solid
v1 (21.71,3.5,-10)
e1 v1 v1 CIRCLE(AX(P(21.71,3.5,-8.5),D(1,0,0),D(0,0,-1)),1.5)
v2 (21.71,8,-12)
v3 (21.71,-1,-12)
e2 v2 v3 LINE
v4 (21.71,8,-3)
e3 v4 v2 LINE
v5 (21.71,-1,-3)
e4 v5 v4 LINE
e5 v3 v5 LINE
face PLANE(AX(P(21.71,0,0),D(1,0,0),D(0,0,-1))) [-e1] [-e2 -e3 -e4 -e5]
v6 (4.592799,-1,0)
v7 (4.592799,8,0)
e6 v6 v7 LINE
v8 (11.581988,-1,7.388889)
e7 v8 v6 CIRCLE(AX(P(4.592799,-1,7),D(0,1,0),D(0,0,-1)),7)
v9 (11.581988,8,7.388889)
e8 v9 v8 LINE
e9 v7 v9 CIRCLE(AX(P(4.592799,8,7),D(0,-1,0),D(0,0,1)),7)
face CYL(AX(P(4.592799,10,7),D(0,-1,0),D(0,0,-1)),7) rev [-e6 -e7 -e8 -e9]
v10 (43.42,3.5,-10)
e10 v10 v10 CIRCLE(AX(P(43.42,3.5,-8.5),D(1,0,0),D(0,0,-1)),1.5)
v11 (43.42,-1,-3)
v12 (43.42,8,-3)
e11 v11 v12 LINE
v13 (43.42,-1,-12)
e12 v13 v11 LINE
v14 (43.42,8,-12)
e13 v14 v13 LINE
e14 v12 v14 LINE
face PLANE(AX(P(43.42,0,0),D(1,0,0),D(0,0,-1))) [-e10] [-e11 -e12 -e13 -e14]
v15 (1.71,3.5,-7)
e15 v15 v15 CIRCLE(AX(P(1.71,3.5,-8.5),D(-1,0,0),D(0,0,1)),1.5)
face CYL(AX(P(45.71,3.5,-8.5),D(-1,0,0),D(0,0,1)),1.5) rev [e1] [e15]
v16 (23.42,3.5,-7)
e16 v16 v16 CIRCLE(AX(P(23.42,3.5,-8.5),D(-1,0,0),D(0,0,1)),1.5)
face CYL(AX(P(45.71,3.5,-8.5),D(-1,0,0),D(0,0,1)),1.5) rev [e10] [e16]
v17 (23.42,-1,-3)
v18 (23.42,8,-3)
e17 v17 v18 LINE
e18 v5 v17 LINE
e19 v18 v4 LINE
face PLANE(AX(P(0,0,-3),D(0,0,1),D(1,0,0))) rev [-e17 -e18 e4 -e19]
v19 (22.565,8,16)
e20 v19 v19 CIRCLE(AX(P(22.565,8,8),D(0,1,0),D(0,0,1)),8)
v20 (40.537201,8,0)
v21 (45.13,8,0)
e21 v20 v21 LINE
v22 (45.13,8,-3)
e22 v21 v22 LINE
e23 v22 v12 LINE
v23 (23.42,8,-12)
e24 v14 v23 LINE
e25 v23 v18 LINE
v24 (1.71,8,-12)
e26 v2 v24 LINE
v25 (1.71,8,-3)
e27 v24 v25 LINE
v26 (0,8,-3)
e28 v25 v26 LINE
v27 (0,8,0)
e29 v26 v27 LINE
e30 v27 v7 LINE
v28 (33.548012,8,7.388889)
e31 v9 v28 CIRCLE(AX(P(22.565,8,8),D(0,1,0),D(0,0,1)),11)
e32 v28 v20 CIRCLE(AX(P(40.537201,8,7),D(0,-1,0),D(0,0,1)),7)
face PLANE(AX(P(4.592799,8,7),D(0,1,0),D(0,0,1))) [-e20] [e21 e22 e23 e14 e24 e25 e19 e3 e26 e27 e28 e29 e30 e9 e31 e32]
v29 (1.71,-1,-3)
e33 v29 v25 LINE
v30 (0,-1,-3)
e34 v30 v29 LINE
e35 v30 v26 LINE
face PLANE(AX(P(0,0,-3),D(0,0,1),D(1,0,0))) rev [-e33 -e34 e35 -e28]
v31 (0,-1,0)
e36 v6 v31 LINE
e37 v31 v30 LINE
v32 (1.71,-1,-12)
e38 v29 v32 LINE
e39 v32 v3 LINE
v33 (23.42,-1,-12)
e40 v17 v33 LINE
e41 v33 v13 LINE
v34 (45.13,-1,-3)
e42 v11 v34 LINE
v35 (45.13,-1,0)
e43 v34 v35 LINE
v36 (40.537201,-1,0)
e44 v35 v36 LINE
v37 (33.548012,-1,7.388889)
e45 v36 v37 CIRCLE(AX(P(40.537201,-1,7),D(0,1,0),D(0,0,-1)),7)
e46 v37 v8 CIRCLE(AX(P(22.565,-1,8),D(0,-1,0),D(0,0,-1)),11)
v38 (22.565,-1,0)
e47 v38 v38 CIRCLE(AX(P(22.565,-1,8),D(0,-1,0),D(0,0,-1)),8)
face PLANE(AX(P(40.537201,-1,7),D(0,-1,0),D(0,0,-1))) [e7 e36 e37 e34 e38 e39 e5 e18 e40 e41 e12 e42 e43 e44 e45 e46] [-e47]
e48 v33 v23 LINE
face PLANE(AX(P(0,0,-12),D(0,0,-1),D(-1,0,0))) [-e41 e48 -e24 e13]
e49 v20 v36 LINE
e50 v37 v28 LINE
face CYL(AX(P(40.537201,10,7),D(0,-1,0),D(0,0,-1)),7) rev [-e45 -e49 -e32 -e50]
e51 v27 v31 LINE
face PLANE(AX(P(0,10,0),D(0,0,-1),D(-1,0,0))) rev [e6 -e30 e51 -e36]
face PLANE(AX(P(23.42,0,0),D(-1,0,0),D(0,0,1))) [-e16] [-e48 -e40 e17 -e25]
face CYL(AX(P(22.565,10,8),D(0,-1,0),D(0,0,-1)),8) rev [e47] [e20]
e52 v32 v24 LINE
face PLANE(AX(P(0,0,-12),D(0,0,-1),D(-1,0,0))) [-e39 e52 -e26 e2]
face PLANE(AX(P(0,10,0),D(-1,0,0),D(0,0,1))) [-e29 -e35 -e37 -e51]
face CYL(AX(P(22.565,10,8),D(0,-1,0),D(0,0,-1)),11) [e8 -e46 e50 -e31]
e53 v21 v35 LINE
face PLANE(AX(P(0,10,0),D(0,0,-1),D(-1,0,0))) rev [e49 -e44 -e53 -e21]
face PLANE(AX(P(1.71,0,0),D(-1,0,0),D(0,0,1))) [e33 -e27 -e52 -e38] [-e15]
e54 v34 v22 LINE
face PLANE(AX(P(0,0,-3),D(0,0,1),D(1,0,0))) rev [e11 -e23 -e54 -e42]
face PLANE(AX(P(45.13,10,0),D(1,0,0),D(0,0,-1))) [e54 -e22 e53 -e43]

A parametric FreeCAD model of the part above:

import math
import FreeCAD as App
import Part
import Sketcher
from FreeCAD import Vector
Q = App.Units.Quantity


def edges_at(feature, points):
    """Names of the edges that pass closest to the given points."""
    edges = feature.Shape.Edges
    near = lambda p: min(range(len(edges)), key=lambda i: edges[i].distToShape(Part.Vertex(*p))[0])
    return sorted({f"Edge{near(p) + 1}" for p in points})

doc = App.newDocument("Part")
body = doc.addObject("PartDesign::Body", "Body")

# Sketch on XZ plane
sketch1 = doc.addObject("Sketcher::SketchObject", "Sketch")
body.addObject(sketch1)
sketch1.AttachmentSupport = (doc.XZ_Plane, [""])
sketch1.MapMode = "FlatFace"
sketch1.addGeometry(Part.ArcOfCircle(Part.Circle(Vector(22.565, 8, 0), Vector(0, 0, 1), 11), math.radians(-46.658242), math.radians(226.658242)), False)
sketch1.addGeometry(Part.LineSegment(Vector(30.114834, 0, 0), Vector(45.13, 0, 0)), False)
sketch1.addGeometry(Part.LineSegment(Vector(45.13, 0, 0), Vector(45.13, -7, 0)), False)
sketch1.addGeometry(Part.LineSegment(Vector(45.13, -7, 0), Vector(0, -7, 0)), False)
sketch1.addGeometry(Part.LineSegment(Vector(0, -7, 0), Vector(0, 0, 0)), False)
sketch1.addGeometry(Part.LineSegment(Vector(0, 0, 0), Vector(15.015166, 0, 0)), False)
sketch1.addGeometry(Part.Circle(Vector(22.565, 8, 0), Vector(0, 0, 1), 8), False)
sketch1.addConstraint(Sketcher.Constraint("Coincident", 0, 1, 1, 1))
sketch1.addConstraint(Sketcher.Constraint("Coincident", 1, 2, 2, 1))
sketch1.addConstraint(Sketcher.Constraint("Coincident", 2, 2, 3, 1))
sketch1.addConstraint(Sketcher.Constraint("Coincident", 3, 2, 4, 1))
sketch1.addConstraint(Sketcher.Constraint("Coincident", 4, 2, 5, 1))
sketch1.addConstraint(Sketcher.Constraint("Coincident", 5, 2, 0, 2))
sketch1.addConstraint(Sketcher.Constraint("Horizontal", 1))
sketch1.addConstraint(Sketcher.Constraint("Vertical", 2))
sketch1.addConstraint(Sketcher.Constraint("Horizontal", 3))
sketch1.addConstraint(Sketcher.Constraint("Vertical", 4))
sketch1.addConstraint(Sketcher.Constraint("Horizontal", 5))
sketch1.addConstraint(Sketcher.Constraint("Coincident", 4, 2, -1, 1))
sketch1.addConstraint(Sketcher.Constraint("Coincident", 6, 3, 0, 3))
sketch1.addConstraint(Sketcher.Constraint("PointOnObject", 0, 1, -1))
sketch1.addConstraint(Sketcher.Constraint("Equal", 1, 5))
sketch1.addConstraint(Sketcher.Constraint("Diameter", 6, Q("16 mm")))
sketch1.addConstraint(Sketcher.Constraint("Radius", 0, Q("11 mm")))
sketch1.addConstraint(Sketcher.Constraint("DistanceY", 2, 2, 2, 1, Q("7 mm")))
sketch1.addConstraint(Sketcher.Constraint("DistanceY", -1, 1, 0, 3, Q("8 mm")))
sketch1.addConstraint(Sketcher.Constraint("DistanceX", 3, 2, 3, 1, Q("45.13 mm")))
pad1 = doc.addObject("PartDesign::Pad", "Pad")
body.addObject(pad1)
pad1.Profile = sketch1
pad1.Length = 10
pad1.Reversed = True
doc.recompute()

fillet = doc.addObject("PartDesign::Fillet", "Fillet")
body.addObject(fillet)
fillet.Base = (pad1, edges_at(pad1, [(30.115, 5, 0), (15.015, 5, 0)]))
fillet.Radius = 7

# Sketch on XZ plane
sketch2 = doc.addObject("Sketcher::SketchObject", "Sketch001")
body.addObject(sketch2)
sketch2.AttachmentSupport = (doc.XZ_Plane, [""])
sketch2.MapMode = "FlatFace"
sketch2.AttachmentOffset = App.Placement(Vector(0, 0, -10), App.Rotation())
sketch2.addGeometry(Part.LineSegment(Vector(0, -7, 0), Vector(0, -3, 0)), False)
sketch2.addGeometry(Part.LineSegment(Vector(0, -3, 0), Vector(1.71, -3, 0)), False)
sketch2.addGeometry(Part.LineSegment(Vector(1.71, -3, 0), Vector(1.71, -7, 0)), False)
sketch2.addGeometry(Part.LineSegment(Vector(1.71, -7, 0), Vector(0, -7, 0)), False)
sketch2.addGeometry(Part.LineSegment(Vector(21.71, -7, 0), Vector(21.71, -3, 0)), False)
sketch2.addGeometry(Part.LineSegment(Vector(21.71, -3, 0), Vector(23.42, -3, 0)), False)
sketch2.addGeometry(Part.LineSegment(Vector(23.42, -3, 0), Vector(23.42, -7, 0)), False)
sketch2.addGeometry(Part.LineSegment(Vector(23.42, -7, 0), Vector(21.71, -7, 0)), False)
sketch2.addGeometry(Part.LineSegment(Vector(43.42, -7, 0), Vector(43.42, -3, 0)), False)
sketch2.addGeometry(Part.LineSegment(Vector(43.42, -3, 0), Vector(45.13, -3, 0)), False)
sketch2.addGeometry(Part.LineSegment(Vector(45.13, -3, 0), Vector(45.13, -7, 0)), False)
sketch2.addGeometry(Part.LineSegment(Vector(45.13, -7, 0), Vector(43.42, -7, 0)), False)
sketch2.addConstraint(Sketcher.Constraint("Coincident", 0, 2, 1, 1))
sketch2.addConstraint(Sketcher.Constraint("Coincident", 1, 2, 2, 1))
sketch2.addConstraint(Sketcher.Constraint("Coincident", 2, 2, 3, 1))
sketch2.addConstraint(Sketcher.Constraint("Coincident", 3, 2, 0, 1))
sketch2.addConstraint(Sketcher.Constraint("Coincident", 4, 2, 5, 1))
sketch2.addConstraint(Sketcher.Constraint("Coincident", 5, 2, 6, 1))
sketch2.addConstraint(Sketcher.Constraint("Coincident", 6, 2, 7, 1))
sketch2.addConstraint(Sketcher.Constraint("Coincident", 7, 2, 4, 1))
sketch2.addConstraint(Sketcher.Constraint("Coincident", 8, 2, 9, 1))
sketch2.addConstraint(Sketcher.Constraint("Coincident", 9, 2, 10, 1))
sketch2.addConstraint(Sketcher.Constraint("Coincident", 10, 2, 11, 1))
sketch2.addConstraint(Sketcher.Constraint("Coincident", 11, 2, 8, 1))
sketch2.addConstraint(Sketcher.Constraint("Vertical", 0))
sketch2.addConstraint(Sketcher.Constraint("Horizontal", 1))
sketch2.addConstraint(Sketcher.Constraint("Vertical", 2))
sketch2.addConstraint(Sketcher.Constraint("Horizontal", 3))
sketch2.addConstraint(Sketcher.Constraint("Vertical", 4))
sketch2.addConstraint(Sketcher.Constraint("Horizontal", 5))
sketch2.addConstraint(Sketcher.Constraint("Vertical", 6))
sketch2.addConstraint(Sketcher.Constraint("Horizontal", 7))
sketch2.addConstraint(Sketcher.Constraint("Vertical", 8))
sketch2.addConstraint(Sketcher.Constraint("Horizontal", 9))
sketch2.addConstraint(Sketcher.Constraint("Vertical", 10))
sketch2.addConstraint(Sketcher.Constraint("Horizontal", 11))
sketch2.addConstraint(Sketcher.Constraint("PointOnObject", 0, 2, -2))
sketch2.addConstraint(Sketcher.Constraint("Horizontal", 1, 2, 4, 2))
sketch2.addConstraint(Sketcher.Constraint("Horizontal", 3, 2, 6, 2))
sketch2.addConstraint(Sketcher.Constraint("Horizontal", 5, 2, 8, 2))
sketch2.addConstraint(Sketcher.Constraint("Horizontal", 7, 2, 10, 2))
sketch2.addConstraint(Sketcher.Constraint("Equal", 3, 5))
sketch2.addConstraint(Sketcher.Constraint("Equal", 7, 9))
sketch2.addConstraint(Sketcher.Constraint("DistanceY", 0, 1, 0, 2, Q("4 mm")))
sketch2.addConstraint(Sketcher.Constraint("DistanceY", 0, 2, -1, 1, Q("3 mm")))
sketch2.addConstraint(Sketcher.Constraint("DistanceX", 1, 2, 4, 2, Q("20 mm")))
sketch2.addConstraint(Sketcher.Constraint("DistanceX", 5, 2, 8, 2, Q("20 mm")))
sketch2.addConstraint(Sketcher.Constraint("DistanceX", 1, 1, 1, 2, Q("1.71 mm")))
pocket1 = doc.addObject("PartDesign::Pocket", "Pocket")
body.addObject(pocket1)
pocket1.Profile = sketch2
pocket1.Length = 10
pocket1.Reversed = True

# Sketch on XY plane
sketch3 = doc.addObject("Sketcher::SketchObject", "Sketch002")
body.addObject(sketch3)
sketch3.AttachmentSupport = (doc.XY_Plane, [""])
sketch3.MapMode = "FlatFace"
sketch3.AttachmentOffset = App.Placement(Vector(0, 0, -7), App.Rotation())
sketch3.addGeometry(Part.LineSegment(Vector(43.42, 10, 0), Vector(43.42, 0, 0)), False)
sketch3.addGeometry(Part.LineSegment(Vector(43.42, 0, 0), Vector(23.42, 0, 0)), False)
sketch3.addGeometry(Part.LineSegment(Vector(23.42, 0, 0), Vector(23.42, 10, 0)), False)
sketch3.addGeometry(Part.LineSegment(Vector(23.42, 10, 0), Vector(43.42, 10, 0)), False)
sketch3.addGeometry(Part.LineSegment(Vector(21.71, 10, 0), Vector(21.71, 0, 0)), False)
sketch3.addGeometry(Part.LineSegment(Vector(21.71, 0, 0), Vector(1.71, 0, 0)), False)
sketch3.addGeometry(Part.LineSegment(Vector(1.71, 0, 0), Vector(1.71, 10, 0)), False)
sketch3.addGeometry(Part.LineSegment(Vector(1.71, 10, 0), Vector(21.71, 10, 0)), False)
sketch3.addConstraint(Sketcher.Constraint("Coincident", 0, 2, 1, 1))
sketch3.addConstraint(Sketcher.Constraint("Coincident", 1, 2, 2, 1))
sketch3.addConstraint(Sketcher.Constraint("Coincident", 2, 2, 3, 1))
sketch3.addConstraint(Sketcher.Constraint("Coincident", 3, 2, 0, 1))
sketch3.addConstraint(Sketcher.Constraint("Coincident", 4, 2, 5, 1))
sketch3.addConstraint(Sketcher.Constraint("Coincident", 5, 2, 6, 1))
sketch3.addConstraint(Sketcher.Constraint("Coincident", 6, 2, 7, 1))
sketch3.addConstraint(Sketcher.Constraint("Coincident", 7, 2, 4, 1))
sketch3.addConstraint(Sketcher.Constraint("Vertical", 0))
sketch3.addConstraint(Sketcher.Constraint("Horizontal", 1))
sketch3.addConstraint(Sketcher.Constraint("Vertical", 2))
sketch3.addConstraint(Sketcher.Constraint("Horizontal", 3))
sketch3.addConstraint(Sketcher.Constraint("Vertical", 4))
sketch3.addConstraint(Sketcher.Constraint("Horizontal", 5))
sketch3.addConstraint(Sketcher.Constraint("Vertical", 6))
sketch3.addConstraint(Sketcher.Constraint("Horizontal", 7))
sketch3.addConstraint(Sketcher.Constraint("PointOnObject", 0, 2, -1))
sketch3.addConstraint(Sketcher.Constraint("PointOnObject", 4, 2, -1))
sketch3.addConstraint(Sketcher.Constraint("Horizontal", 3, 2, 6, 2))
sketch3.addConstraint(Sketcher.Constraint("Equal", 3, 5))
sketch3.addConstraint(Sketcher.Constraint("DistanceX", 1, 2, 1, 1, Q("20 mm")))
sketch3.addConstraint(Sketcher.Constraint("DistanceY", 0, 2, 0, 1, Q("10 mm")))
sketch3.addConstraint(Sketcher.Constraint("DistanceX", -1, 1, 0, 2, Q("43.42 mm")))
sketch3.addConstraint(Sketcher.Constraint("DistanceX", -1, 1, 4, 2, Q("21.71 mm")))
pad2 = doc.addObject("PartDesign::Pad", "Pad001")
body.addObject(pad2)
pad2.Profile = sketch3
pad2.Length = 3
pad2.Reversed = True

# Sketch on XZ plane
sketch4 = doc.addObject("Sketcher::SketchObject", "Sketch003")
body.addObject(sketch4)
sketch4.AttachmentSupport = (doc.XZ_Plane, [""])
sketch4.MapMode = "FlatFace"
sketch4.AttachmentOffset = App.Placement(Vector(0, 0, -7), App.Rotation())
sketch4.addGeometry(Part.LineSegment(Vector(21.71, -3, 0), Vector(21.71, -10, 0)), False)
sketch4.addGeometry(Part.LineSegment(Vector(21.71, -10, 0), Vector(1.71, -10, 0)), False)
sketch4.addGeometry(Part.LineSegment(Vector(1.71, -10, 0), Vector(1.71, -3, 0)), False)
sketch4.addGeometry(Part.LineSegment(Vector(1.71, -3, 0), Vector(0, -3, 0)), False)
sketch4.addGeometry(Part.LineSegment(Vector(0, -3, 0), Vector(0, 0, 0)), False)
sketch4.addGeometry(Part.LineSegment(Vector(0, 0, 0), Vector(4.592799, 0, 0)), False)
sketch4.addGeometry(Part.ArcOfCircle(Part.Circle(Vector(4.592799, 7, 0), Vector(0, 0, 1), 7), math.radians(-90), math.radians(3.184739)), False)
sketch4.addGeometry(Part.ArcOfCircle(Part.Circle(Vector(22.565, 8, 0), Vector(0, 0, 1), 11), math.radians(-3.184739), math.radians(183.184739)), False)
sketch4.addGeometry(Part.ArcOfCircle(Part.Circle(Vector(40.537201, 7, 0), Vector(0, 0, 1), 7), math.radians(176.815261), math.radians(270)), False)
sketch4.addGeometry(Part.LineSegment(Vector(40.537201, 0, 0), Vector(45.13, 0, 0)), False)
sketch4.addGeometry(Part.LineSegment(Vector(45.13, 0, 0), Vector(45.13, -3, 0)), False)
sketch4.addGeometry(Part.LineSegment(Vector(45.13, -3, 0), Vector(43.42, -3, 0)), False)
sketch4.addGeometry(Part.LineSegment(Vector(43.42, -3, 0), Vector(43.42, -10, 0)), False)
sketch4.addGeometry(Part.LineSegment(Vector(43.42, -10, 0), Vector(23.42, -10, 0)), False)
sketch4.addGeometry(Part.LineSegment(Vector(23.42, -10, 0), Vector(23.42, -3, 0)), False)
sketch4.addGeometry(Part.LineSegment(Vector(23.42, -3, 0), Vector(21.71, -3, 0)), False)
sketch4.addConstraint(Sketcher.Constraint("Coincident", 0, 2, 1, 1))
sketch4.addConstraint(Sketcher.Constraint("Coincident", 1, 2, 2, 1))
sketch4.addConstraint(Sketcher.Constraint("Coincident", 2, 2, 3, 1))
sketch4.addConstraint(Sketcher.Constraint("Coincident", 3, 2, 4, 1))
sketch4.addConstraint(Sketcher.Constraint("Coincident", 4, 2, 5, 1))
sketch4.addConstraint(Sketcher.Constraint("Tangent", 5, 2, 6, 1))
sketch4.addConstraint(Sketcher.Constraint("Tangent", 6, 2, 7, 2))
sketch4.addConstraint(Sketcher.Constraint("Tangent", 7, 1, 8, 1))
sketch4.addConstraint(Sketcher.Constraint("Tangent", 8, 2, 9, 1))
sketch4.addConstraint(Sketcher.Constraint("Coincident", 9, 2, 10, 1))
sketch4.addConstraint(Sketcher.Constraint("Coincident", 10, 2, 11, 1))
sketch4.addConstraint(Sketcher.Constraint("Coincident", 11, 2, 12, 1))
sketch4.addConstraint(Sketcher.Constraint("Coincident", 12, 2, 13, 1))
sketch4.addConstraint(Sketcher.Constraint("Coincident", 13, 2, 14, 1))
sketch4.addConstraint(Sketcher.Constraint("Coincident", 14, 2, 15, 1))
sketch4.addConstraint(Sketcher.Constraint("Coincident", 15, 2, 0, 1))
sketch4.addConstraint(Sketcher.Constraint("Vertical", 0))
sketch4.addConstraint(Sketcher.Constraint("Horizontal", 1))
sketch4.addConstraint(Sketcher.Constraint("Vertical", 2))
sketch4.addConstraint(Sketcher.Constraint("Horizontal", 3))
sketch4.addConstraint(Sketcher.Constraint("Vertical", 4))
sketch4.addConstraint(Sketcher.Constraint("Horizontal", 5))
sketch4.addConstraint(Sketcher.Constraint("Horizontal", 9))
sketch4.addConstraint(Sketcher.Constraint("Vertical", 10))
sketch4.addConstraint(Sketcher.Constraint("Horizontal", 11))
sketch4.addConstraint(Sketcher.Constraint("Vertical", 12))
sketch4.addConstraint(Sketcher.Constraint("Horizontal", 13))
sketch4.addConstraint(Sketcher.Constraint("Vertical", 14))
sketch4.addConstraint(Sketcher.Constraint("Horizontal", 15))
sketch4.addConstraint(Sketcher.Constraint("Coincident", 4, 2, -1, 1))
sketch4.addConstraint(Sketcher.Constraint("Equal", 6, 8))
sketch4.addConstraint(Sketcher.Constraint("PointOnObject", 8, 2, -1))
sketch4.addConstraint(Sketcher.Constraint("Horizontal", 3, 2, 10, 2))
sketch4.addConstraint(Sketcher.Constraint("Horizontal", 1, 2, 12, 2))
sketch4.addConstraint(Sketcher.Constraint("Horizontal", 11, 2, 14, 2))
sketch4.addConstraint(Sketcher.Constraint("Equal", 5, 9))
sketch4.addConstraint(Sketcher.Constraint("Equal", 3, 11))
sketch4.addConstraint(Sketcher.Constraint("Equal", 1, 13))
sketch4.addConstraint(Sketcher.Constraint("Equal", 11, 15))
sketch4.addConstraint(Sketcher.Constraint("Radius", 6, Q("7 mm")))
sketch4.addConstraint(Sketcher.Constraint("Radius", 7, Q("11 mm")))
sketch4.addConstraint(Sketcher.Constraint("DistanceX", 1, 2, 1, 1, Q("20 mm")))
sketch4.addConstraint(Sketcher.Constraint("DistanceY", 0, 2, 0, 1, Q("7 mm")))
sketch4.addConstraint(Sketcher.Constraint("DistanceY", 4, 1, 4, 2, Q("3 mm")))
sketch4.addConstraint(Sketcher.Constraint("DistanceY", -1, 1, 7, 3, Q("8 mm")))
sketch4.addConstraint(Sketcher.Constraint("DistanceX", 3, 2, 3, 1, Q("1.71 mm")))
pocket2 = doc.addObject("PartDesign::Pocket", "Pocket001")
body.addObject(pocket2)
pocket2.Profile = sketch4
pocket2.Length = 3

# Sketch on XY plane
sketch5 = doc.addObject("Sketcher::SketchObject", "Sketch004")
body.addObject(sketch5)
sketch5.AttachmentSupport = (doc.XY_Plane, [""])
sketch5.MapMode = "FlatFace"
sketch5.AttachmentOffset = App.Placement(Vector(0, 0, -10), App.Rotation())
sketch5.addGeometry(Part.LineSegment(Vector(43.42, 7, 0), Vector(43.42, 0, 0)), False)
sketch5.addGeometry(Part.LineSegment(Vector(43.42, 0, 0), Vector(23.42, 0, 0)), False)
sketch5.addGeometry(Part.LineSegment(Vector(23.42, 0, 0), Vector(23.42, 7, 0)), False)
sketch5.addGeometry(Part.LineSegment(Vector(23.42, 7, 0), Vector(43.42, 7, 0)), False)
sketch5.addGeometry(Part.LineSegment(Vector(21.71, 7, 0), Vector(21.71, 0, 0)), False)
sketch5.addGeometry(Part.LineSegment(Vector(21.71, 0, 0), Vector(1.71, 0, 0)), False)
sketch5.addGeometry(Part.LineSegment(Vector(1.71, 0, 0), Vector(1.71, 7, 0)), False)
sketch5.addGeometry(Part.LineSegment(Vector(1.71, 7, 0), Vector(21.71, 7, 0)), False)
sketch5.addConstraint(Sketcher.Constraint("Coincident", 0, 2, 1, 1))
sketch5.addConstraint(Sketcher.Constraint("Coincident", 1, 2, 2, 1))
sketch5.addConstraint(Sketcher.Constraint("Coincident", 2, 2, 3, 1))
sketch5.addConstraint(Sketcher.Constraint("Coincident", 3, 2, 0, 1))
sketch5.addConstraint(Sketcher.Constraint("Coincident", 4, 2, 5, 1))
sketch5.addConstraint(Sketcher.Constraint("Coincident", 5, 2, 6, 1))
sketch5.addConstraint(Sketcher.Constraint("Coincident", 6, 2, 7, 1))
sketch5.addConstraint(Sketcher.Constraint("Coincident", 7, 2, 4, 1))
sketch5.addConstraint(Sketcher.Constraint("Vertical", 0))
sketch5.addConstraint(Sketcher.Constraint("Horizontal", 1))
sketch5.addConstraint(Sketcher.Constraint("Vertical", 2))
sketch5.addConstraint(Sketcher.Constraint("Horizontal", 3))
sketch5.addConstraint(Sketcher.Constraint("Vertical", 4))
sketch5.addConstraint(Sketcher.Constraint("Horizontal", 5))
sketch5.addConstraint(Sketcher.Constraint("Vertical", 6))
sketch5.addConstraint(Sketcher.Constraint("Horizontal", 7))
sketch5.addConstraint(Sketcher.Constraint("PointOnObject", 0, 2, -1))
sketch5.addConstraint(Sketcher.Constraint("PointOnObject", 4, 2, -1))
sketch5.addConstraint(Sketcher.Constraint("Horizontal", 3, 2, 6, 2))
sketch5.addConstraint(Sketcher.Constraint("Equal", 3, 5))
sketch5.addConstraint(Sketcher.Constraint("DistanceX", 1, 2, 1, 1, Q("20 mm")))
sketch5.addConstraint(Sketcher.Constraint("DistanceY", 0, 2, 0, 1, Q("7 mm")))
sketch5.addConstraint(Sketcher.Constraint("DistanceX", -1, 1, 0, 2, Q("43.42 mm")))
sketch5.addConstraint(Sketcher.Constraint("DistanceX", -1, 1, 4, 2, Q("21.71 mm")))
pad3 = doc.addObject("PartDesign::Pad", "Pad002")
body.addObject(pad3)
pad3.Profile = sketch5
pad3.Length = 2
pad3.Reversed = True

# Sketch on YZ plane
sketch6 = doc.addObject("Sketcher::SketchObject", "Sketch005")
body.addObject(sketch6)
sketch6.AttachmentSupport = (doc.YZ_Plane, [""])
sketch6.MapMode = "FlatFace"
sketch6.AttachmentOffset = App.Placement(Vector(0, 0, 1.71), App.Rotation())
sketch6.addGeometry(Part.Circle(Vector(3.5, -8.5, 0), Vector(0, 0, 1), 1.5), False)
sketch6.addConstraint(Sketcher.Constraint("Diameter", 0, Q("3 mm")))
sketch6.addConstraint(Sketcher.Constraint("DistanceX", -1, 1, 0, 3, Q("3.5 mm")))
sketch6.addConstraint(Sketcher.Constraint("DistanceY", 0, 3, -1, 1, Q("8.5 mm")))
pocket3 = doc.addObject("PartDesign::Pocket", "Pocket002")
body.addObject(pocket3)
pocket3.Profile = sketch6
pocket3.Length = 44
pocket3.Reversed = True

# Sketch on XZ plane
sketch7 = doc.addObject("Sketcher::SketchObject", "Sketch006")
body.addObject(sketch7)
sketch7.AttachmentSupport = (doc.XZ_Plane, [""])
sketch7.MapMode = "FlatFace"
sketch7.AttachmentOffset = App.Placement(Vector(0, 0, -7), App.Rotation())
sketch7.addGeometry(Part.LineSegment(Vector(23.42, -3, 0), Vector(21.71, -3, 0)), False)
sketch7.addGeometry(Part.LineSegment(Vector(21.71, -3, 0), Vector(21.71, -12, 0)), False)
sketch7.addGeometry(Part.LineSegment(Vector(21.71, -12, 0), Vector(1.71, -12, 0)), False)
sketch7.addGeometry(Part.LineSegment(Vector(1.71, -12, 0), Vector(1.71, -3, 0)), False)
sketch7.addGeometry(Part.LineSegment(Vector(1.71, -3, 0), Vector(0, -3, 0)), False)
sketch7.addGeometry(Part.LineSegment(Vector(0, -3, 0), Vector(0, 0, 0)), False)
sketch7.addGeometry(Part.LineSegment(Vector(0, 0, 0), Vector(4.592799, 0, 0)), False)
sketch7.addGeometry(Part.ArcOfCircle(Part.Circle(Vector(4.592799, 7, 0), Vector(0, 0, 1), 7), math.radians(-90), math.radians(3.184739)), False)
sketch7.addGeometry(Part.ArcOfCircle(Part.Circle(Vector(22.565, 8, 0), Vector(0, 0, 1), 11), math.radians(-3.184739), math.radians(183.184739)), False)
sketch7.addGeometry(Part.ArcOfCircle(Part.Circle(Vector(40.537201, 7, 0), Vector(0, 0, 1), 7), math.radians(176.815261), math.radians(270)), False)
sketch7.addGeometry(Part.LineSegment(Vector(40.537201, 0, 0), Vector(45.13, 0, 0)), False)
sketch7.addGeometry(Part.LineSegment(Vector(45.13, 0, 0), Vector(45.13, -3, 0)), False)
sketch7.addGeometry(Part.LineSegment(Vector(45.13, -3, 0), Vector(43.42, -3, 0)), False)
sketch7.addGeometry(Part.LineSegment(Vector(43.42, -3, 0), Vector(43.42, -12, 0)), False)
sketch7.addGeometry(Part.LineSegment(Vector(43.42, -12, 0), Vector(23.42, -12, 0)), False)
sketch7.addGeometry(Part.LineSegment(Vector(23.42, -12, 0), Vector(23.42, -3, 0)), False)
sketch7.addGeometry(Part.Circle(Vector(22.565, 8, 0), Vector(0, 0, 1), 8), False)
sketch7.addConstraint(Sketcher.Constraint("Coincident", 0, 2, 1, 1))
sketch7.addConstraint(Sketcher.Constraint("Coincident", 1, 2, 2, 1))
sketch7.addConstraint(Sketcher.Constraint("Coincident", 2, 2, 3, 1))
sketch7.addConstraint(Sketcher.Constraint("Coincident", 3, 2, 4, 1))
sketch7.addConstraint(Sketcher.Constraint("Coincident", 4, 2, 5, 1))
sketch7.addConstraint(Sketcher.Constraint("Coincident", 5, 2, 6, 1))
sketch7.addConstraint(Sketcher.Constraint("Tangent", 6, 2, 7, 1))
sketch7.addConstraint(Sketcher.Constraint("Tangent", 7, 2, 8, 2))
sketch7.addConstraint(Sketcher.Constraint("Tangent", 8, 1, 9, 1))
sketch7.addConstraint(Sketcher.Constraint("Tangent", 9, 2, 10, 1))
sketch7.addConstraint(Sketcher.Constraint("Coincident", 10, 2, 11, 1))
sketch7.addConstraint(Sketcher.Constraint("Coincident", 11, 2, 12, 1))
sketch7.addConstraint(Sketcher.Constraint("Coincident", 12, 2, 13, 1))
sketch7.addConstraint(Sketcher.Constraint("Coincident", 13, 2, 14, 1))
sketch7.addConstraint(Sketcher.Constraint("Coincident", 14, 2, 15, 1))
sketch7.addConstraint(Sketcher.Constraint("Coincident", 15, 2, 0, 1))
sketch7.addConstraint(Sketcher.Constraint("Horizontal", 0))
sketch7.addConstraint(Sketcher.Constraint("Vertical", 1))
sketch7.addConstraint(Sketcher.Constraint("Horizontal", 2))
sketch7.addConstraint(Sketcher.Constraint("Vertical", 3))
sketch7.addConstraint(Sketcher.Constraint("Horizontal", 4))
sketch7.addConstraint(Sketcher.Constraint("Vertical", 5))
sketch7.addConstraint(Sketcher.Constraint("Horizontal", 6))
sketch7.addConstraint(Sketcher.Constraint("Horizontal", 10))
sketch7.addConstraint(Sketcher.Constraint("Vertical", 11))
sketch7.addConstraint(Sketcher.Constraint("Horizontal", 12))
sketch7.addConstraint(Sketcher.Constraint("Vertical", 13))
sketch7.addConstraint(Sketcher.Constraint("Horizontal", 14))
sketch7.addConstraint(Sketcher.Constraint("Vertical", 15))
sketch7.addConstraint(Sketcher.Constraint("Coincident", 5, 2, -1, 1))
sketch7.addConstraint(Sketcher.Constraint("Coincident", 16, 3, 8, 3))
sketch7.addConstraint(Sketcher.Constraint("Equal", 7, 9))
sketch7.addConstraint(Sketcher.Constraint("PointOnObject", 9, 2, -1))
sketch7.addConstraint(Sketcher.Constraint("Horizontal", 0, 2, 3, 2))
sketch7.addConstraint(Sketcher.Constraint("Horizontal", 4, 2, 11, 2))
sketch7.addConstraint(Sketcher.Constraint("Horizontal", 2, 2, 13, 2))
sketch7.addConstraint(Sketcher.Constraint("Equal", 0, 4))
sketch7.addConstraint(Sketcher.Constraint("Equal", 6, 10))
sketch7.addConstraint(Sketcher.Constraint("Equal", 4, 12))
sketch7.addConstraint(Sketcher.Constraint("Equal", 2, 14))
sketch7.addConstraint(Sketcher.Constraint("Diameter", 16, Q("16 mm")))
sketch7.addConstraint(Sketcher.Constraint("Radius", 7, Q("7 mm")))
sketch7.addConstraint(Sketcher.Constraint("Radius", 8, Q("11 mm")))
sketch7.addConstraint(Sketcher.Constraint("DistanceX", 2, 2, 2, 1, Q("20 mm")))
sketch7.addConstraint(Sketcher.Constraint("DistanceY", 1, 2, 1, 1, Q("9 mm")))
sketch7.addConstraint(Sketcher.Constraint("DistanceY", 5, 1, 5, 2, Q("3 mm")))
sketch7.addConstraint(Sketcher.Constraint("DistanceY", -1, 1, 8, 3, Q("8 mm")))
sketch7.addConstraint(Sketcher.Constraint("DistanceX", 0, 2, 0, 1, Q("1.71 mm")))
pad4 = doc.addObject("PartDesign::Pad", "Pad003")
body.addObject(pad4)
pad4.Profile = sketch7
pad4.Length = 1
pad4.Reversed = True

# Sketch on XZ plane
sketch8 = doc.addObject("Sketcher::SketchObject", "Sketch007")
body.addObject(sketch8)
sketch8.AttachmentSupport = (doc.XZ_Plane, [""])
sketch8.MapMode = "FlatFace"
sketch8.AttachmentOffset = App.Placement(Vector(0, 0, 1), App.Rotation())
sketch8.addGeometry(Part.LineSegment(Vector(1.71, -3, 0), Vector(1.71, -12, 0)), False)
sketch8.addGeometry(Part.LineSegment(Vector(1.71, -12, 0), Vector(21.71, -12, 0)), False)
sketch8.addGeometry(Part.LineSegment(Vector(21.71, -12, 0), Vector(21.71, -3, 0)), False)
sketch8.addGeometry(Part.LineSegment(Vector(21.71, -3, 0), Vector(23.42, -3, 0)), False)
sketch8.addGeometry(Part.LineSegment(Vector(23.42, -3, 0), Vector(23.42, -12, 0)), False)
sketch8.addGeometry(Part.LineSegment(Vector(23.42, -12, 0), Vector(43.42, -12, 0)), False)
sketch8.addGeometry(Part.LineSegment(Vector(43.42, -12, 0), Vector(43.42, -3, 0)), False)
sketch8.addGeometry(Part.LineSegment(Vector(43.42, -3, 0), Vector(45.13, -3, 0)), False)
sketch8.addGeometry(Part.LineSegment(Vector(45.13, -3, 0), Vector(45.13, 0, 0)), False)
sketch8.addGeometry(Part.LineSegment(Vector(45.13, 0, 0), Vector(40.537201, 0, 0)), False)
sketch8.addGeometry(Part.ArcOfCircle(Part.Circle(Vector(40.537201, 7, 0), Vector(0, 0, 1), 7), math.radians(176.815261), math.radians(270)), False)
sketch8.addGeometry(Part.ArcOfCircle(Part.Circle(Vector(22.565, 8, 0), Vector(0, 0, 1), 11), math.radians(-3.184739), math.radians(183.184739)), False)
sketch8.addGeometry(Part.ArcOfCircle(Part.Circle(Vector(4.592799, 7, 0), Vector(0, 0, 1), 7), math.radians(-90), math.radians(3.184739)), False)
sketch8.addGeometry(Part.LineSegment(Vector(4.592799, 0, 0), Vector(0, 0, 0)), False)
sketch8.addGeometry(Part.LineSegment(Vector(0, 0, 0), Vector(0, -3, 0)), False)
sketch8.addGeometry(Part.LineSegment(Vector(0, -3, 0), Vector(1.71, -3, 0)), False)
sketch8.addGeometry(Part.Circle(Vector(22.565, 8, 0), Vector(0, 0, 1), 8), False)
sketch8.addConstraint(Sketcher.Constraint("Coincident", 0, 2, 1, 1))
sketch8.addConstraint(Sketcher.Constraint("Coincident", 1, 2, 2, 1))
sketch8.addConstraint(Sketcher.Constraint("Coincident", 2, 2, 3, 1))
sketch8.addConstraint(Sketcher.Constraint("Coincident", 3, 2, 4, 1))
sketch8.addConstraint(Sketcher.Constraint("Coincident", 4, 2, 5, 1))
sketch8.addConstraint(Sketcher.Constraint("Coincident", 5, 2, 6, 1))
sketch8.addConstraint(Sketcher.Constraint("Coincident", 6, 2, 7, 1))
sketch8.addConstraint(Sketcher.Constraint("Coincident", 7, 2, 8, 1))
sketch8.addConstraint(Sketcher.Constraint("Coincident", 8, 2, 9, 1))
sketch8.addConstraint(Sketcher.Constraint("Tangent", 9, 2, 10, 2))
sketch8.addConstraint(Sketcher.Constraint("Tangent", 10, 1, 11, 1))
sketch8.addConstraint(Sketcher.Constraint("Tangent", 11, 2, 12, 2))
sketch8.addConstraint(Sketcher.Constraint("Tangent", 12, 1, 13, 1))
sketch8.addConstraint(Sketcher.Constraint("Coincident", 13, 2, 14, 1))
sketch8.addConstraint(Sketcher.Constraint("Coincident", 14, 2, 15, 1))
sketch8.addConstraint(Sketcher.Constraint("Coincident", 15, 2, 0, 1))
sketch8.addConstraint(Sketcher.Constraint("Vertical", 0))
sketch8.addConstraint(Sketcher.Constraint("Horizontal", 1))
sketch8.addConstraint(Sketcher.Constraint("Vertical", 2))
sketch8.addConstraint(Sketcher.Constraint("Horizontal", 3))
sketch8.addConstraint(Sketcher.Constraint("Vertical", 4))
sketch8.addConstraint(Sketcher.Constraint("Horizontal", 5))
sketch8.addConstraint(Sketcher.Constraint("Vertical", 6))
sketch8.addConstraint(Sketcher.Constraint("Horizontal", 7))
sketch8.addConstraint(Sketcher.Constraint("Vertical", 8))
sketch8.addConstraint(Sketcher.Constraint("Horizontal", 9))
sketch8.addConstraint(Sketcher.Constraint("Horizontal", 13))
sketch8.addConstraint(Sketcher.Constraint("Vertical", 14))
sketch8.addConstraint(Sketcher.Constraint("Horizontal", 15))
sketch8.addConstraint(Sketcher.Constraint("Coincident", 13, 2, -1, 1))
sketch8.addConstraint(Sketcher.Constraint("Coincident", 16, 3, 11, 3))
sketch8.addConstraint(Sketcher.Constraint("Equal", 10, 12))
sketch8.addConstraint(Sketcher.Constraint("PointOnObject", 8, 2, -1))
sketch8.addConstraint(Sketcher.Constraint("Horizontal", 1, 2, 4, 2))
sketch8.addConstraint(Sketcher.Constraint("Horizontal", 3, 2, 6, 2))
sketch8.addConstraint(Sketcher.Constraint("Horizontal", 7, 2, 14, 2))
sketch8.addConstraint(Sketcher.Constraint("Equal", 1, 5))
sketch8.addConstraint(Sketcher.Constraint("Equal", 3, 7))
sketch8.addConstraint(Sketcher.Constraint("Equal", 9, 13))
sketch8.addConstraint(Sketcher.Constraint("Equal", 7, 15))
sketch8.addConstraint(Sketcher.Constraint("Diameter", 16, Q("16 mm")))
sketch8.addConstraint(Sketcher.Constraint("Radius", 10, Q("7 mm")))
sketch8.addConstraint(Sketcher.Constraint("Radius", 11, Q("11 mm")))
sketch8.addConstraint(Sketcher.Constraint("DistanceX", 1, 1, 1, 2, Q("20 mm")))
sketch8.addConstraint(Sketcher.Constraint("DistanceY", 0, 2, 0, 1, Q("9 mm")))
sketch8.addConstraint(Sketcher.Constraint("DistanceY", 8, 1, 8, 2, Q("3 mm")))
sketch8.addConstraint(Sketcher.Constraint("DistanceY", -1, 1, 11, 3, Q("8 mm")))
sketch8.addConstraint(Sketcher.Constraint("DistanceX", 3, 1, 3, 2, Q("1.71 mm")))
pad5 = doc.addObject("PartDesign::Pad", "Pad004")
body.addObject(pad5)
pad5.Profile = sketch8
pad5.Length = 1
pad5.Reversed = True

doc.recompute()
